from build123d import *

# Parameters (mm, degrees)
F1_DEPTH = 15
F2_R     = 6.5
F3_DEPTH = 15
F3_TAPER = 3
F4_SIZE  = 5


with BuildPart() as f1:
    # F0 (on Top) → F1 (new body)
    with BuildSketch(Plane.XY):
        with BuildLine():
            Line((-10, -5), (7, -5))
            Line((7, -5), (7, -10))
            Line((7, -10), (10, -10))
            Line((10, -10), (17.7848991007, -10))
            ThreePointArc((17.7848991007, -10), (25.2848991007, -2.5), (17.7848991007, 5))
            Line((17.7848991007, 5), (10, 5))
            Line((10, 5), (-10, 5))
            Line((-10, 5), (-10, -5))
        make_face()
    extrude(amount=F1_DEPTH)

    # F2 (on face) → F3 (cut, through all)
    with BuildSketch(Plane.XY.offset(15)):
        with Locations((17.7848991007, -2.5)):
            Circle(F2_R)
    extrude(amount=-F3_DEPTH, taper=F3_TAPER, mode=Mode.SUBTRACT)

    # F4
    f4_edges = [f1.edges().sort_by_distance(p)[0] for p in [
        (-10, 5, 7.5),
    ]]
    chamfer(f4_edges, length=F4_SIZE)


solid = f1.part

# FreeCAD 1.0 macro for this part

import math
import FreeCAD as App
import Part
import Sketcher
from FreeCAD import Vector
Q = App.Units.Quantity


def edges_at(feature, points):
    """Names of the edges that pass closest to the given points."""
    edges = feature.Shape.Edges
    near = lambda p: min(range(len(edges)), key=lambda i: edges[i].distToShape(Part.Vertex(*p))[0])
    return sorted({f"Edge{near(p) + 1}" for p in points})

doc = App.newDocument("Part")
body = doc.addObject("PartDesign::Body", "Body")

# Sketch on XY plane
sketch1 = body.newObject("Sketcher::SketchObject", "Sketch")
sketch1.AttachmentSupport = (doc.getObject("XY_Plane"), [""])
sketch1.MapMode = "FlatFace"
sketch1.addGeometry([
    Part.LineSegment(Vector(-10, -5, 0), Vector(7, -5, 0)),  # 0
    Part.LineSegment(Vector(7, -5, 0), Vector(7, -10, 0)),  # 1
    Part.LineSegment(Vector(7, -10, 0), Vector(18, -10, 0)),  # 2
    Part.ArcOfCircle(Part.Circle(Vector(18, -2, 0), Vector(0, 0, 1), 8), math.radians(-90), math.radians(90)),  # 3
    Part.LineSegment(Vector(18, 5, 0), Vector(-10, 5, 0)),  # 4
    Part.LineSegment(Vector(-10, 5, 0), Vector(-10, -5, 0)),  # 5
], False)
sketch1.addConstraint([
    Sketcher.Constraint("Coincident", 0, 2, 1, 1),
    Sketcher.Constraint("Coincident", 1, 2, 2, 1),
    Sketcher.Constraint("Tangent", 2, 2, 3, 1),
    Sketcher.Constraint("Tangent", 3, 2, 4, 1),
    Sketcher.Constraint("Coincident", 4, 2, 5, 1),
    Sketcher.Constraint("Coincident", 5, 2, 0, 1),
    Sketcher.Constraint("Horizontal", 0),
    Sketcher.Constraint("Vertical", 1),
    Sketcher.Constraint("Horizontal", 2),
    Sketcher.Constraint("Horizontal", 4),
    Sketcher.Constraint("Vertical", 5),
    Sketcher.Constraint("Radius", 3, Q("7.5 mm")),
    Sketcher.Constraint("DistanceX", 0, 1, 0, 2, Q("17 mm")),
    Sketcher.Constraint("DistanceY", 1, 2, 1, 1, Q("5 mm")),
    Sketcher.Constraint("DistanceX", -1, 1, 0, 2, Q("7 mm")),
    Sketcher.Constraint("DistanceY", 0, 2, -1, 1, Q("5 mm")),
    Sketcher.Constraint("DistanceX", 2, 1, 2, 2, Q("10.784899 mm")),
])
pad1 = body.newObject("PartDesign::Pad", "Pad")
pad1.Profile = sketch1
pad1.Length = 15

# Sketch on XY plane
sketch2 = body.newObject("Sketcher::SketchObject", "Sketch001")
sketch2.AttachmentSupport = (doc.getObject("XY_Plane"), [""])
sketch2.MapMode = "FlatFace"
sketch2.AttachmentOffset = App.Placement(Vector(0, 0, 15), App.Rotation())
sketch2.addGeometry(Part.Circle(Vector(18, -2, 0), Vector(0, 0, 1), 6), False)
sketch2.addConstraint([
    Sketcher.Constraint("Diameter", 0, Q("13 mm")),
    Sketcher.Constraint("DistanceY", 0, 3, -1, 1, Q("2.5 mm")),
    Sketcher.Constraint("DistanceX", -1, 1, 0, 3, Q("17.784899 mm")),
])
pocket1 = body.newObject("PartDesign::Pocket", "Pocket")
pocket1.Profile = sketch2
pocket1.Length = 15
pocket1.TaperAngle = -3
doc.recompute()

chamfer = body.newObject("PartDesign::Chamfer", "Chamfer")
chamfer.Base = (pocket1, edges_at(pocket1, [(-10, 5, 7.5)]))
chamfer.Size = 5

doc.recompute()
